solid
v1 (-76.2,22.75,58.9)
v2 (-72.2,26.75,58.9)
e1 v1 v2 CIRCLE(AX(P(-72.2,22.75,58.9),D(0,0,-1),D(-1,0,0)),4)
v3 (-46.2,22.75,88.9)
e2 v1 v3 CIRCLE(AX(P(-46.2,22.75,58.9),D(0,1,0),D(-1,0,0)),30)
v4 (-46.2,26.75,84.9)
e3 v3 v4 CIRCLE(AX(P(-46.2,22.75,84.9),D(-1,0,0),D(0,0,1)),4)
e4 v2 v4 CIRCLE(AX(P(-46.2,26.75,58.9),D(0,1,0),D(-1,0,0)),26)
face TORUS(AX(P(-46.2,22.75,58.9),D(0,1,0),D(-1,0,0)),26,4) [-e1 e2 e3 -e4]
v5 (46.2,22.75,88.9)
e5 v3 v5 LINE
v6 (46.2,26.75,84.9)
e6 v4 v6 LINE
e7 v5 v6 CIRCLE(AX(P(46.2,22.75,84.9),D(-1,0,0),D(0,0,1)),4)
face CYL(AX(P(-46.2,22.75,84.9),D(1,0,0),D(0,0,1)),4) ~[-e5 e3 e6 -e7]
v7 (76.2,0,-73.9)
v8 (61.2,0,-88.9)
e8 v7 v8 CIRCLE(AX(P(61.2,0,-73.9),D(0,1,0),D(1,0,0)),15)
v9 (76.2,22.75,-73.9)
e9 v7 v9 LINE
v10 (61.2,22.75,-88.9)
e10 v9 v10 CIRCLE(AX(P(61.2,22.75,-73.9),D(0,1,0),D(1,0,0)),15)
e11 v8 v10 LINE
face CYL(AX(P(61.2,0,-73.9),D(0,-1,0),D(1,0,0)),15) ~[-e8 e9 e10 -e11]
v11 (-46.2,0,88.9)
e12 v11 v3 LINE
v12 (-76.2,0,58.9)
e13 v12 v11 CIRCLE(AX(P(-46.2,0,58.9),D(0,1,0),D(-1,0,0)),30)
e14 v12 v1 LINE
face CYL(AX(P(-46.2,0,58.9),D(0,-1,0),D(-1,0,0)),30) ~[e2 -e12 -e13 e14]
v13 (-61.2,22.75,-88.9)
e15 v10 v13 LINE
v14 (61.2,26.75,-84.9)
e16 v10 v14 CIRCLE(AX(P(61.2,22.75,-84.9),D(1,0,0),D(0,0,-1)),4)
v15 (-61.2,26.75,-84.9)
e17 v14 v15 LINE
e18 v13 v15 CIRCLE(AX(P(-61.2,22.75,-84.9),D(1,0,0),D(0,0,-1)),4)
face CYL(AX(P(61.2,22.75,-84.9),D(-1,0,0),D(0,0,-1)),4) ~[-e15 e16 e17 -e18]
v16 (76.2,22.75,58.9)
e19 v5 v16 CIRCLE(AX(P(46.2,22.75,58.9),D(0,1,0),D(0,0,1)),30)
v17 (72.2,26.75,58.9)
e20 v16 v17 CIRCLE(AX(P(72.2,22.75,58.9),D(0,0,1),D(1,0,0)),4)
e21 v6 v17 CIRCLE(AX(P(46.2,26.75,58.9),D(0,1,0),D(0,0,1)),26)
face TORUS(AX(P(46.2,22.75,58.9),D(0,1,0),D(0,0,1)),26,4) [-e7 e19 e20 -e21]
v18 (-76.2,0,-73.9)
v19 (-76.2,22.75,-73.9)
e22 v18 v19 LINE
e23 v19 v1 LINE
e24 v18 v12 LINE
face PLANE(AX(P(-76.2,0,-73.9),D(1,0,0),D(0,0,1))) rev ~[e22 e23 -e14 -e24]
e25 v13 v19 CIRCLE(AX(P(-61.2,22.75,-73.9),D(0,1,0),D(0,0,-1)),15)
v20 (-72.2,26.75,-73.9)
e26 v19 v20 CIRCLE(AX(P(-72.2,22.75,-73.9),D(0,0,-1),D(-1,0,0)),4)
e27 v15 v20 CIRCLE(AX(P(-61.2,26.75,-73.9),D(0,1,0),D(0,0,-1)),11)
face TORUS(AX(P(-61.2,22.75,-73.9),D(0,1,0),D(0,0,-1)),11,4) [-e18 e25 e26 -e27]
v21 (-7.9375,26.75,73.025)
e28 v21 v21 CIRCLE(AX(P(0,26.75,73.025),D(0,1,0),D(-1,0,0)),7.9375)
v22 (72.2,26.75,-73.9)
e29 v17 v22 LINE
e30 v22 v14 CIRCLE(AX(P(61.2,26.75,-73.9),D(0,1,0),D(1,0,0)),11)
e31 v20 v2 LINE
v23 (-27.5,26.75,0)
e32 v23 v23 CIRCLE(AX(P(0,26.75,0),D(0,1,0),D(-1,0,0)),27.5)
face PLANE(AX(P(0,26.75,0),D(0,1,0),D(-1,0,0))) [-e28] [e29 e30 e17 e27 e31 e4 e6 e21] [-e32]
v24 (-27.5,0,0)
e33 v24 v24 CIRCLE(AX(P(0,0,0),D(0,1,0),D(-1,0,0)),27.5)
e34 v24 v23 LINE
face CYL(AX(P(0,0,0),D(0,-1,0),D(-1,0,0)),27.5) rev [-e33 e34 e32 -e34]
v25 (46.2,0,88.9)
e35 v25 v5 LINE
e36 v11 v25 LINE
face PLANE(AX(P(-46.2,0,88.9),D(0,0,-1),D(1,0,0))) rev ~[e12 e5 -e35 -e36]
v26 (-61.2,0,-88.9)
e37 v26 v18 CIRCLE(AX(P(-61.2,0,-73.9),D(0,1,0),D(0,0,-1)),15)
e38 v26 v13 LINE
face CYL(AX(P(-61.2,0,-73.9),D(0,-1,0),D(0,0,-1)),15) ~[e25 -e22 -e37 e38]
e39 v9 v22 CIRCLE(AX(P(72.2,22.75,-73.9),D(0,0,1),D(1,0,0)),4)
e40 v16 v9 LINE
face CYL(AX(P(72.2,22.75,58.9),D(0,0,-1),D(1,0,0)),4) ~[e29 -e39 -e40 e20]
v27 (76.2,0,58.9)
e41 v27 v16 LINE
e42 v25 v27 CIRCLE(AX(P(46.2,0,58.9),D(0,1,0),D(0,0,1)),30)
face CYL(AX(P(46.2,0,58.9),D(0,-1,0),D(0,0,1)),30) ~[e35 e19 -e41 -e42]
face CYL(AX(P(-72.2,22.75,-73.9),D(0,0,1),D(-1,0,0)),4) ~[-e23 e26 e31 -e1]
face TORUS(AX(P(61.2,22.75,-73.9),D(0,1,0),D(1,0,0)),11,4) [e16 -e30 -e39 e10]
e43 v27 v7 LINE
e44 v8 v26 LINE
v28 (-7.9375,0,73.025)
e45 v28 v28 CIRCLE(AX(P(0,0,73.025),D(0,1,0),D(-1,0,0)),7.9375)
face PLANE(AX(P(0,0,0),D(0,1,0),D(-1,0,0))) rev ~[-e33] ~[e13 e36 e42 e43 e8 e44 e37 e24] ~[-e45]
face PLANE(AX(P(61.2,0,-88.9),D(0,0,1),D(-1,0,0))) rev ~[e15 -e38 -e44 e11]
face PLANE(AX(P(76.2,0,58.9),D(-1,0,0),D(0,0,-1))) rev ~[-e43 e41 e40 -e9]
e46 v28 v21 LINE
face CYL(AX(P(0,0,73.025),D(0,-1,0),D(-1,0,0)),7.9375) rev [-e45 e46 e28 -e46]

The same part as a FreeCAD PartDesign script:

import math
import FreeCAD as App
import Part
import Sketcher
from FreeCAD import Vector


def edges_at(feature, points):
    """Names of the edges that pass closest to the given points."""
    edges = feature.Shape.Edges
    near = lambda p: min(range(len(edges)), key=lambda i: edges[i].distToShape(Part.Vertex(*p))[0])
    return sorted({f"Edge{near(p) + 1}" for p in points})

doc = App.newDocument("Part")
body = doc.addObject("PartDesign::Body", "Body")

# Sketch on XZ plane
sketch1 = body.newObject("Sketcher::SketchObject", "Sketch")
sketch1.AttachmentSupport = (doc.getObject("XZ_Plane"), [""])
sketch1.MapMode = "FlatFace"
sketch1.addGeometry(Part.ArcOfCircle(Part.Circle(Vector(61, -74, 0), Vector(0, 0, 1), 15), math.radians(-90), math.radians(0)), False)
sketch1.addGeometry(Part.LineSegment(Vector(61, -89, 0), Vector(-61, -89, 0)), False)
sketch1.addGeometry(Part.ArcOfCircle(Part.Circle(Vector(-61, -74, 0), Vector(0, 0, 1), 15), math.radians(180), math.radians(270)), False)
sketch1.addGeometry(Part.LineSegment(Vector(-76, -74, 0), Vector(-76, 59, 0)), False)
sketch1.addGeometry(Part.ArcOfCircle(Part.Circle(Vector(-46, 59, 0), Vector(0, 0, 1), 30), math.radians(90), math.radians(180)), False)
sketch1.addGeometry(Part.LineSegment(Vector(-46, 89, 0), Vector(46, 89, 0)), False)
sketch1.addGeometry(Part.ArcOfCircle(Part.Circle(Vector(46, 59, 0), Vector(0, 0, 1), 30), math.radians(0), math.radians(90)), False)
sketch1.addGeometry(Part.LineSegment(Vector(76, 59, 0), Vector(76, -74, 0)), False)
sketch1.addGeometry(Part.Circle(Vector(0, 0, 0), Vector(0, 0, 1), 28), False)
sketch1.addGeometry(Part.Circle(Vector(0, 73, 0), Vector(0, 0, 1), 8), False)
sketch1.addConstraint(Sketcher.Constraint("Tangent", 0, 1, 1, 1))
sketch1.addConstraint(Sketcher.Constraint("Tangent", 1, 2, 2, 2))
sketch1.addConstraint(Sketcher.Constraint("Tangent", 2, 1, 3, 1))
sketch1.addConstraint(Sketcher.Constraint("Tangent", 3, 2, 4, 2))
sketch1.addConstraint(Sketcher.Constraint("Tangent", 4, 1, 5, 1))
sketch1.addConstraint(Sketcher.Constraint("Tangent", 5, 2, 6, 2))
sketch1.addConstraint(Sketcher.Constraint("Tangent", 6, 1, 7, 1))
sketch1.addConstraint(Sketcher.Constraint("Tangent", 7, 2, 0, 2))
sketch1.addConstraint(Sketcher.Constraint("Horizontal", 1))
sketch1.addConstraint(Sketcher.Constraint("Vertical", 3))
sketch1.addConstraint(Sketcher.Constraint("Horizontal", 5))
sketch1.addConstraint(Sketcher.Constraint("Vertical", 7))
sketch1.addConstraint(Sketcher.Constraint("Coincident", 8, 3, -1, 1))
sketch1.addConstraint(Sketcher.Constraint("Equal", 0, 2))
sketch1.addConstraint(Sketcher.Constraint("Equal", 4, 6))
sketch1.addConstraint(Sketcher.Constraint("PointOnObject", 9, 3, -2))
sketch1.addConstraint(Sketcher.Constraint("Diameter", 8, 55.0))
sketch1.addConstraint(Sketcher.Constraint("Radius", 0, 15.0))
sketch1.addConstraint(Sketcher.Constraint("Radius", 4, 30.0))
sketch1.addConstraint(Sketcher.Constraint("Diameter", 9, 15.875))
sketch1.addConstraint(Sketcher.Constraint("DistanceX", 1, 2, 1, 1, 122.4))
sketch1.addConstraint(Sketcher.Constraint("DistanceY", 3, 1, 3, 2, 132.8))
sketch1.addConstraint(Sketcher.Constraint("DistanceY", 9, 3, 4, 1, 15.875))
sketch1.addConstraint(Sketcher.Constraint("DistanceX", -1, 1, 0, 3, 61.2))
sketch1.addConstraint(Sketcher.Constraint("DistanceY", 0, 3, -1, 1, 73.9))
pad1 = body.newObject("PartDesign::Pad", "Pad")
pad1.Profile = sketch1
pad1.Length = 26.75
pad1.Reversed = True
doc.recompute()

fillet = body.newObject("PartDesign::Fillet", "Fillet")
fillet.Base = (pad1, edges_at(pad1, [
    (71.807, 26.75, -84.507),
    (0, 26.75, -88.9),
    (-71.807, 26.75, -84.507),
    (-76.2, 26.75, -7.5),
    (-67.413, 26.75, 80.113),
    (0, 26.75, 88.9),
    (67.413, 26.75, 80.113),
    (76.2, 26.75, -7.5),
]))
fillet.Radius = 4

doc.recompute()
